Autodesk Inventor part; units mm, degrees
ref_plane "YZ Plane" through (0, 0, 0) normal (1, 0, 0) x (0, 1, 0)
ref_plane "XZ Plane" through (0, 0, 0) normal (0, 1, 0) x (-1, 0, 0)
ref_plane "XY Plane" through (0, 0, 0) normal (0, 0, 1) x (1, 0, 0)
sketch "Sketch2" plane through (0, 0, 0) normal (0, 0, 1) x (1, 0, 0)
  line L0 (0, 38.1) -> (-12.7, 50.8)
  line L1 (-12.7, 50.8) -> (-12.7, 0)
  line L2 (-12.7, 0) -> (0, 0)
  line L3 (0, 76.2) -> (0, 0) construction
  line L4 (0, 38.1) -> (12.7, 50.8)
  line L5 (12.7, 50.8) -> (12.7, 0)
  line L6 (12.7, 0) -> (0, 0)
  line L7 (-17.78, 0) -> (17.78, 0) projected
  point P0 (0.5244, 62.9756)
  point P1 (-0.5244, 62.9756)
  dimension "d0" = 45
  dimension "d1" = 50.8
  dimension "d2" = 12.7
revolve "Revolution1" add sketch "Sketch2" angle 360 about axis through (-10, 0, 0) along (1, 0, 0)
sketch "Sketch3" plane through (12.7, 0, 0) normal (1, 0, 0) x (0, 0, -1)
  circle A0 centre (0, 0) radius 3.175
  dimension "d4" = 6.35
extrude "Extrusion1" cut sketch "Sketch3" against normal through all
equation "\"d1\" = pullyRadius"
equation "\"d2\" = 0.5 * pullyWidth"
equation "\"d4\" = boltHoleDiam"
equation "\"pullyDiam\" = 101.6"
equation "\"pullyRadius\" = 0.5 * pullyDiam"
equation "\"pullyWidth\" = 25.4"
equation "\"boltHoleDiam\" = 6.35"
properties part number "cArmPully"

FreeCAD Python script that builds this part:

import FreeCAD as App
import Part
import Sketcher
Q = App.Units.Quantity

doc = App.newDocument("Part")
body = doc.addObject("PartDesign::Body", "Body")

# Sketch on XY plane
sketch1 = doc.addObject("Sketcher::SketchObject", "Sketch")
body.addObject(sketch1)
sketch1.AttachmentSupport = (doc.XY_Plane, [""])
sketch1.MapMode = "FlatFace"
sketch1.addGeometry(Part.LineSegment(App.Vector(12.7, 50.8, 0), App.Vector(0, 38.1, 0)), False)
sketch1.addGeometry(Part.LineSegment(App.Vector(0, 38.1, 0), App.Vector(-12.7, 50.8, 0)), False)
sketch1.addGeometry(Part.LineSegment(App.Vector(-12.7, 50.8, 0), App.Vector(-12.7, 0, 0)), False)
sketch1.addGeometry(Part.LineSegment(App.Vector(-12.7, 0, 0), App.Vector(12.7, 0, 0)), False)
sketch1.addGeometry(Part.LineSegment(App.Vector(12.7, 0, 0), App.Vector(12.7, 50.8, 0)), False)
sketch1.addConstraint(Sketcher.Constraint("Coincident", 0, 2, 1, 1))
sketch1.addConstraint(Sketcher.Constraint("Coincident", 1, 2, 2, 1))
sketch1.addConstraint(Sketcher.Constraint("Coincident", 2, 2, 3, 1))
sketch1.addConstraint(Sketcher.Constraint("Coincident", 3, 2, 4, 1))
sketch1.addConstraint(Sketcher.Constraint("Coincident", 4, 2, 0, 1))
sketch1.addConstraint(Sketcher.Constraint("Vertical", 2))
sketch1.addConstraint(Sketcher.Constraint("Horizontal", 3))
sketch1.addConstraint(Sketcher.Constraint("Vertical", 4))
sketch1.addConstraint(Sketcher.Constraint("Symmetric", 2, 2, 3, 2, -1, 1))
sketch1.addConstraint(Sketcher.Constraint("PointOnObject", 0, 2, -2))
sketch1.addConstraint(Sketcher.Constraint("Perpendicular", 0, 1))
sketch1.addConstraint(Sketcher.Constraint("Horizontal", 1, 2, 4, 2))
sketch1.addConstraint(Sketcher.Constraint("DistanceY", 2, 2, 2, 1, Q("2 in")))
sketch1.addConstraint(Sketcher.Constraint("DistanceX", 1, 2, -1, 1, Q("0.5 in")))
revolution = doc.addObject("PartDesign::Revolution", "Revolution")
body.addObject(revolution)
revolution.Profile = sketch1
revolution.ReferenceAxis = (sketch1, ["H_Axis"])
revolution.Angle = 360

# Sketch on YZ plane
sketch2 = doc.addObject("Sketcher::SketchObject", "Sketch001")
body.addObject(sketch2)
sketch2.AttachmentSupport = (doc.YZ_Plane, [""])
sketch2.MapMode = "FlatFace"
sketch2.AttachmentOffset = App.Placement(App.Vector(0, 0, 0.5 * 25.4), App.Rotation())
sketch2.addGeometry(Part.Circle(App.Vector(0, 0, 0), App.Vector(0, 0, 1), 3.175), False)
sketch2.addConstraint(Sketcher.Constraint("Coincident", 0, 3, -1, 1))
sketch2.addConstraint(Sketcher.Constraint("Diameter", 0, Q("0.25 in")))
pocket1 = doc.addObject("PartDesign::Pocket", "Pocket")
body.addObject(pocket1)
pocket1.Profile = sketch2
pocket1.Type = "ThroughAll"

doc.recompute()
